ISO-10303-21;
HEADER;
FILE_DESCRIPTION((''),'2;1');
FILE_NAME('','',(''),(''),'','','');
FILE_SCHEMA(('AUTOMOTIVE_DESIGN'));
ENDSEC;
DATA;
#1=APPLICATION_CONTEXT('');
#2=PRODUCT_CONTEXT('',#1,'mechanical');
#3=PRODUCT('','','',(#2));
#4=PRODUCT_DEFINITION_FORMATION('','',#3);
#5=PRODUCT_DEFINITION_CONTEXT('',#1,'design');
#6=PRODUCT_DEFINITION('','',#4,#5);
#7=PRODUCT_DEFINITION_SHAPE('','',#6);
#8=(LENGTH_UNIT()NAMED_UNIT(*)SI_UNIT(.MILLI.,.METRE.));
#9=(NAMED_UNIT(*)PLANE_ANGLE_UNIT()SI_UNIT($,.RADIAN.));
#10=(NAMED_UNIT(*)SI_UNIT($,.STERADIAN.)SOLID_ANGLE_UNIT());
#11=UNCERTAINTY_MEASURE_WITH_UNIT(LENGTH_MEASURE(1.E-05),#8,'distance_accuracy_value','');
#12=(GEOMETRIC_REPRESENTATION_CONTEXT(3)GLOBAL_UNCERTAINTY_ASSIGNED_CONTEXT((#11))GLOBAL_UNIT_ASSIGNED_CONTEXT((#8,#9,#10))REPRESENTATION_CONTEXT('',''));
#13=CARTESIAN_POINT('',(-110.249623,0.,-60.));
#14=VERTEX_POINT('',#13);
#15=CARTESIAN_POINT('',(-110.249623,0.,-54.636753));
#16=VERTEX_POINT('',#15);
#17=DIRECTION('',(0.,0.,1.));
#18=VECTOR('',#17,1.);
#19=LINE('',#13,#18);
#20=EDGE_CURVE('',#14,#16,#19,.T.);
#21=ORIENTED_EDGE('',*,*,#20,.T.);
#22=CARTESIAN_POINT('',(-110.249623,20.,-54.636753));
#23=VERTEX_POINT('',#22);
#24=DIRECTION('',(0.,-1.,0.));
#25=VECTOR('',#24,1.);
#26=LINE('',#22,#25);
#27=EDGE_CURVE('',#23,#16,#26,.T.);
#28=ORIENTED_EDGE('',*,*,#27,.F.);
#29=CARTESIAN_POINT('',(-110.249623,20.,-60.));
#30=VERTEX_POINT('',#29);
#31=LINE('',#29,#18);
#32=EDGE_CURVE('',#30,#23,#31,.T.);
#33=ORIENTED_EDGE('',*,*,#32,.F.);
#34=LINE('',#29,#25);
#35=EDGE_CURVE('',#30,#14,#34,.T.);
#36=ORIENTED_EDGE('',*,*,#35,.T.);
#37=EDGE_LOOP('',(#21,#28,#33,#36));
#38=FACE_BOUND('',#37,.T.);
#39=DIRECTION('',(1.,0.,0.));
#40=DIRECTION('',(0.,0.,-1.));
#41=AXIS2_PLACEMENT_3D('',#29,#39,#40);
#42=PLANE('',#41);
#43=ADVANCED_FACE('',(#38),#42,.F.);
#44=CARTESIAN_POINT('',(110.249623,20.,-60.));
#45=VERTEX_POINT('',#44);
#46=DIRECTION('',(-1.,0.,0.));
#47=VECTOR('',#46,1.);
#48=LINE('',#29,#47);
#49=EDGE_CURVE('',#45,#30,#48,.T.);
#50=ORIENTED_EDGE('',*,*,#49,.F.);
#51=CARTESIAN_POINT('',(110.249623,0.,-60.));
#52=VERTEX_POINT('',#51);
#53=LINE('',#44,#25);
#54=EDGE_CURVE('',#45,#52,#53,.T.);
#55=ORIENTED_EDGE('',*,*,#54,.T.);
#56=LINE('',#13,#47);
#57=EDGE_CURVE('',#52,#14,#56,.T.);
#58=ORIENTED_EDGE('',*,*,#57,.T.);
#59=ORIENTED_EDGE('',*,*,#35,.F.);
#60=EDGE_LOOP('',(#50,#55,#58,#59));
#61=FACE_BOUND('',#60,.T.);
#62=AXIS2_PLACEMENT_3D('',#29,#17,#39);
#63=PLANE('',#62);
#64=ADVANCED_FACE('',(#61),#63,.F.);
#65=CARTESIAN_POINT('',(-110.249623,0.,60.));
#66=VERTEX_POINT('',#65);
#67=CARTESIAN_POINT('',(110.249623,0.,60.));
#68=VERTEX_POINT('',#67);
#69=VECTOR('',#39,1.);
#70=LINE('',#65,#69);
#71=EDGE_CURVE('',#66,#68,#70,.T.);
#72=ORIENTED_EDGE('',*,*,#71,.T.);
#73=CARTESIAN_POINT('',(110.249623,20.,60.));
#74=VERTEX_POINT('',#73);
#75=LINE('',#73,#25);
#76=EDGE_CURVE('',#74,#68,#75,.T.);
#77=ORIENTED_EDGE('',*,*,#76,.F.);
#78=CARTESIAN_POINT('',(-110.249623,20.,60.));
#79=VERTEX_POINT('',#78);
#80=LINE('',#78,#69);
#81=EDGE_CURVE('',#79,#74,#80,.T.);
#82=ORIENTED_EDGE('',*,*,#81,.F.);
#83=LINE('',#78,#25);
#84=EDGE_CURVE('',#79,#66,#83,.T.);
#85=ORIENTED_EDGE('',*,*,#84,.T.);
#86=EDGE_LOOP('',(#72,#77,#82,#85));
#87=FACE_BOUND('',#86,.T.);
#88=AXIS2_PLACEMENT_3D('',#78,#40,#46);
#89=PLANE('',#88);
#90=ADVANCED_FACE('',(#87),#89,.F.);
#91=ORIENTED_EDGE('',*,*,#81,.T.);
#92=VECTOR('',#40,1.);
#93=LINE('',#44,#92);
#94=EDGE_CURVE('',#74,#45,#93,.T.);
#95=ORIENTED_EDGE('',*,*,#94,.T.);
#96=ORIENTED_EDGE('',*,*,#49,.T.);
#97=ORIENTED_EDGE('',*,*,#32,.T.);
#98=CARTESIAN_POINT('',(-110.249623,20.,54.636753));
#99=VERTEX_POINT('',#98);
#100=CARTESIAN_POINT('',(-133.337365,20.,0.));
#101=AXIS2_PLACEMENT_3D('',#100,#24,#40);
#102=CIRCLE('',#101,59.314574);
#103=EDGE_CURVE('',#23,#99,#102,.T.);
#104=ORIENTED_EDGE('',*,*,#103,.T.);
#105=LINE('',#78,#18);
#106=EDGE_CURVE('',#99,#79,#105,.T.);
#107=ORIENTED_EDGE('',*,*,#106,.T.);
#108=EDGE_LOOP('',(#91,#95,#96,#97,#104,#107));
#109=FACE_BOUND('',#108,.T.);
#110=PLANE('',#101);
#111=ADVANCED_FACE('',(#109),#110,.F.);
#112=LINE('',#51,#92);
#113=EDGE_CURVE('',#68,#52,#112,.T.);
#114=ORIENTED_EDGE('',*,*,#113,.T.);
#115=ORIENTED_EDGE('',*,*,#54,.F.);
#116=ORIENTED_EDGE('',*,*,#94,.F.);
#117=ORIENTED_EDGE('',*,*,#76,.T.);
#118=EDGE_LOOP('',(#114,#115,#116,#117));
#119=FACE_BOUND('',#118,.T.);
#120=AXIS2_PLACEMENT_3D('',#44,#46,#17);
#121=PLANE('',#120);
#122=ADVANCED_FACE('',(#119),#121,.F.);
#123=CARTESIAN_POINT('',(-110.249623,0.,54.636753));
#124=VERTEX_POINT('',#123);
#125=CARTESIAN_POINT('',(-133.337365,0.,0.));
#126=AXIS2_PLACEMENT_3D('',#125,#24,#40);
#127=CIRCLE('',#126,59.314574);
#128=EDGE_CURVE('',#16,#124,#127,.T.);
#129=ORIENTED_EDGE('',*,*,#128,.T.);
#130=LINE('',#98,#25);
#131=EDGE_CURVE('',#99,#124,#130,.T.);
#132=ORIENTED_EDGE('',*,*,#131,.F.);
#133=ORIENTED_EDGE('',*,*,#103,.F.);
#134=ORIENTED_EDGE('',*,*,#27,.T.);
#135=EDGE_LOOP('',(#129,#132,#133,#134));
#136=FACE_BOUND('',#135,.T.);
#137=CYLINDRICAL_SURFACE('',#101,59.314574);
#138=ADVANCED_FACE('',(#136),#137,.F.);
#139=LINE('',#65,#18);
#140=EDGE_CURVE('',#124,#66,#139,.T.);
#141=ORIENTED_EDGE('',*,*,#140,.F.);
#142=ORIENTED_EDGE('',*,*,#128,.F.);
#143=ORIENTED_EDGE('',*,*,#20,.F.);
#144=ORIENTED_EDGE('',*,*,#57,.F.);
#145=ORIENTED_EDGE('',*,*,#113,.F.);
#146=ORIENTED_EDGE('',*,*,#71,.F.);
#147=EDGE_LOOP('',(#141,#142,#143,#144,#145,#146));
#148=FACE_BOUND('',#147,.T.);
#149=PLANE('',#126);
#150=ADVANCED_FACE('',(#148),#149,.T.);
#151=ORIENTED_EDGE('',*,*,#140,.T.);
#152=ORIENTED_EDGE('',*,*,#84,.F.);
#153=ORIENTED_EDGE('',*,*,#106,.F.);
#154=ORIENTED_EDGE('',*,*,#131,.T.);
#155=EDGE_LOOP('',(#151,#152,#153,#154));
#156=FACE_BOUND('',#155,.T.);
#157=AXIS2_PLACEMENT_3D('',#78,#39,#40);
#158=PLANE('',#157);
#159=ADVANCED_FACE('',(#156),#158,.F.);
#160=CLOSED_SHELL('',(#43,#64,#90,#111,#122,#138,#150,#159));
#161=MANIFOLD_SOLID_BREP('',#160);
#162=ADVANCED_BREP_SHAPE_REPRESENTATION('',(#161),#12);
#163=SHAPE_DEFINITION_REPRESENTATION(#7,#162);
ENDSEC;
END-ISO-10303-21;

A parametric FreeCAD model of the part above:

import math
import FreeCAD as App
import Part
import Sketcher
from FreeCAD import Vector

doc = App.newDocument("Part")
body = doc.addObject("PartDesign::Body", "Body")

# Sketch on XZ plane
sketch1 = body.newObject("Sketcher::SketchObject", "Sketch")
sketch1.AttachmentSupport = (doc.getObject("XZ_Plane"), [""])
sketch1.MapMode = "FlatFace"
sketch1.addGeometry([
    Part.LineSegment(Vector(-110, -60, 0), Vector(-110, -55, 0)),  # 0
    Part.ArcOfCircle(Part.Circle(Vector(-133, 0, 0), Vector(0, 0, 1), 59), math.radians(-67), math.radians(67)),  # 1
    Part.LineSegment(Vector(-110, 55, 0), Vector(-110, 60, 0)),  # 2
    Part.LineSegment(Vector(-110, 60, 0), Vector(110, 60, 0)),  # 3
    Part.LineSegment(Vector(110, 60, 0), Vector(110, -60, 0)),  # 4
    Part.LineSegment(Vector(110, -60, 0), Vector(-110, -60, 0)),  # 5
], False)
sketch1.addConstraint([
    Sketcher.Constraint("Coincident", 0, 2, 1, 1),
    Sketcher.Constraint("Coincident", 1, 2, 2, 1),
    Sketcher.Constraint("Coincident", 2, 2, 3, 1),
    Sketcher.Constraint("Coincident", 3, 2, 4, 1),
    Sketcher.Constraint("Coincident", 4, 2, 5, 1),
    Sketcher.Constraint("Coincident", 5, 2, 0, 1),
    Sketcher.Constraint("Vertical", 0),
    Sketcher.Constraint("Vertical", 2),
    Sketcher.Constraint("Horizontal", 3),
    Sketcher.Constraint("Vertical", 4),
    Sketcher.Constraint("Horizontal", 5),
    Sketcher.Constraint("Symmetric", 2, 2, 4, 2, -1, 1),
    Sketcher.Constraint("Symmetric", 0, 2, 1, 2, -1),
    Sketcher.Constraint("DistanceY", 4, 2, 4, 1, 120.0),
    Sketcher.Constraint("Radius", 1, 59.314574),
    Sketcher.Constraint("DistanceX", 3, 1, 3, 2, 220.499246),
    Sketcher.Constraint("DistanceY", 0, 1, 0, 2, 5.363247),
])
pad1 = body.newObject("PartDesign::Pad", "Pad")
pad1.Profile = sketch1
pad1.Length = 20
pad1.Reversed = True

doc.recompute()
